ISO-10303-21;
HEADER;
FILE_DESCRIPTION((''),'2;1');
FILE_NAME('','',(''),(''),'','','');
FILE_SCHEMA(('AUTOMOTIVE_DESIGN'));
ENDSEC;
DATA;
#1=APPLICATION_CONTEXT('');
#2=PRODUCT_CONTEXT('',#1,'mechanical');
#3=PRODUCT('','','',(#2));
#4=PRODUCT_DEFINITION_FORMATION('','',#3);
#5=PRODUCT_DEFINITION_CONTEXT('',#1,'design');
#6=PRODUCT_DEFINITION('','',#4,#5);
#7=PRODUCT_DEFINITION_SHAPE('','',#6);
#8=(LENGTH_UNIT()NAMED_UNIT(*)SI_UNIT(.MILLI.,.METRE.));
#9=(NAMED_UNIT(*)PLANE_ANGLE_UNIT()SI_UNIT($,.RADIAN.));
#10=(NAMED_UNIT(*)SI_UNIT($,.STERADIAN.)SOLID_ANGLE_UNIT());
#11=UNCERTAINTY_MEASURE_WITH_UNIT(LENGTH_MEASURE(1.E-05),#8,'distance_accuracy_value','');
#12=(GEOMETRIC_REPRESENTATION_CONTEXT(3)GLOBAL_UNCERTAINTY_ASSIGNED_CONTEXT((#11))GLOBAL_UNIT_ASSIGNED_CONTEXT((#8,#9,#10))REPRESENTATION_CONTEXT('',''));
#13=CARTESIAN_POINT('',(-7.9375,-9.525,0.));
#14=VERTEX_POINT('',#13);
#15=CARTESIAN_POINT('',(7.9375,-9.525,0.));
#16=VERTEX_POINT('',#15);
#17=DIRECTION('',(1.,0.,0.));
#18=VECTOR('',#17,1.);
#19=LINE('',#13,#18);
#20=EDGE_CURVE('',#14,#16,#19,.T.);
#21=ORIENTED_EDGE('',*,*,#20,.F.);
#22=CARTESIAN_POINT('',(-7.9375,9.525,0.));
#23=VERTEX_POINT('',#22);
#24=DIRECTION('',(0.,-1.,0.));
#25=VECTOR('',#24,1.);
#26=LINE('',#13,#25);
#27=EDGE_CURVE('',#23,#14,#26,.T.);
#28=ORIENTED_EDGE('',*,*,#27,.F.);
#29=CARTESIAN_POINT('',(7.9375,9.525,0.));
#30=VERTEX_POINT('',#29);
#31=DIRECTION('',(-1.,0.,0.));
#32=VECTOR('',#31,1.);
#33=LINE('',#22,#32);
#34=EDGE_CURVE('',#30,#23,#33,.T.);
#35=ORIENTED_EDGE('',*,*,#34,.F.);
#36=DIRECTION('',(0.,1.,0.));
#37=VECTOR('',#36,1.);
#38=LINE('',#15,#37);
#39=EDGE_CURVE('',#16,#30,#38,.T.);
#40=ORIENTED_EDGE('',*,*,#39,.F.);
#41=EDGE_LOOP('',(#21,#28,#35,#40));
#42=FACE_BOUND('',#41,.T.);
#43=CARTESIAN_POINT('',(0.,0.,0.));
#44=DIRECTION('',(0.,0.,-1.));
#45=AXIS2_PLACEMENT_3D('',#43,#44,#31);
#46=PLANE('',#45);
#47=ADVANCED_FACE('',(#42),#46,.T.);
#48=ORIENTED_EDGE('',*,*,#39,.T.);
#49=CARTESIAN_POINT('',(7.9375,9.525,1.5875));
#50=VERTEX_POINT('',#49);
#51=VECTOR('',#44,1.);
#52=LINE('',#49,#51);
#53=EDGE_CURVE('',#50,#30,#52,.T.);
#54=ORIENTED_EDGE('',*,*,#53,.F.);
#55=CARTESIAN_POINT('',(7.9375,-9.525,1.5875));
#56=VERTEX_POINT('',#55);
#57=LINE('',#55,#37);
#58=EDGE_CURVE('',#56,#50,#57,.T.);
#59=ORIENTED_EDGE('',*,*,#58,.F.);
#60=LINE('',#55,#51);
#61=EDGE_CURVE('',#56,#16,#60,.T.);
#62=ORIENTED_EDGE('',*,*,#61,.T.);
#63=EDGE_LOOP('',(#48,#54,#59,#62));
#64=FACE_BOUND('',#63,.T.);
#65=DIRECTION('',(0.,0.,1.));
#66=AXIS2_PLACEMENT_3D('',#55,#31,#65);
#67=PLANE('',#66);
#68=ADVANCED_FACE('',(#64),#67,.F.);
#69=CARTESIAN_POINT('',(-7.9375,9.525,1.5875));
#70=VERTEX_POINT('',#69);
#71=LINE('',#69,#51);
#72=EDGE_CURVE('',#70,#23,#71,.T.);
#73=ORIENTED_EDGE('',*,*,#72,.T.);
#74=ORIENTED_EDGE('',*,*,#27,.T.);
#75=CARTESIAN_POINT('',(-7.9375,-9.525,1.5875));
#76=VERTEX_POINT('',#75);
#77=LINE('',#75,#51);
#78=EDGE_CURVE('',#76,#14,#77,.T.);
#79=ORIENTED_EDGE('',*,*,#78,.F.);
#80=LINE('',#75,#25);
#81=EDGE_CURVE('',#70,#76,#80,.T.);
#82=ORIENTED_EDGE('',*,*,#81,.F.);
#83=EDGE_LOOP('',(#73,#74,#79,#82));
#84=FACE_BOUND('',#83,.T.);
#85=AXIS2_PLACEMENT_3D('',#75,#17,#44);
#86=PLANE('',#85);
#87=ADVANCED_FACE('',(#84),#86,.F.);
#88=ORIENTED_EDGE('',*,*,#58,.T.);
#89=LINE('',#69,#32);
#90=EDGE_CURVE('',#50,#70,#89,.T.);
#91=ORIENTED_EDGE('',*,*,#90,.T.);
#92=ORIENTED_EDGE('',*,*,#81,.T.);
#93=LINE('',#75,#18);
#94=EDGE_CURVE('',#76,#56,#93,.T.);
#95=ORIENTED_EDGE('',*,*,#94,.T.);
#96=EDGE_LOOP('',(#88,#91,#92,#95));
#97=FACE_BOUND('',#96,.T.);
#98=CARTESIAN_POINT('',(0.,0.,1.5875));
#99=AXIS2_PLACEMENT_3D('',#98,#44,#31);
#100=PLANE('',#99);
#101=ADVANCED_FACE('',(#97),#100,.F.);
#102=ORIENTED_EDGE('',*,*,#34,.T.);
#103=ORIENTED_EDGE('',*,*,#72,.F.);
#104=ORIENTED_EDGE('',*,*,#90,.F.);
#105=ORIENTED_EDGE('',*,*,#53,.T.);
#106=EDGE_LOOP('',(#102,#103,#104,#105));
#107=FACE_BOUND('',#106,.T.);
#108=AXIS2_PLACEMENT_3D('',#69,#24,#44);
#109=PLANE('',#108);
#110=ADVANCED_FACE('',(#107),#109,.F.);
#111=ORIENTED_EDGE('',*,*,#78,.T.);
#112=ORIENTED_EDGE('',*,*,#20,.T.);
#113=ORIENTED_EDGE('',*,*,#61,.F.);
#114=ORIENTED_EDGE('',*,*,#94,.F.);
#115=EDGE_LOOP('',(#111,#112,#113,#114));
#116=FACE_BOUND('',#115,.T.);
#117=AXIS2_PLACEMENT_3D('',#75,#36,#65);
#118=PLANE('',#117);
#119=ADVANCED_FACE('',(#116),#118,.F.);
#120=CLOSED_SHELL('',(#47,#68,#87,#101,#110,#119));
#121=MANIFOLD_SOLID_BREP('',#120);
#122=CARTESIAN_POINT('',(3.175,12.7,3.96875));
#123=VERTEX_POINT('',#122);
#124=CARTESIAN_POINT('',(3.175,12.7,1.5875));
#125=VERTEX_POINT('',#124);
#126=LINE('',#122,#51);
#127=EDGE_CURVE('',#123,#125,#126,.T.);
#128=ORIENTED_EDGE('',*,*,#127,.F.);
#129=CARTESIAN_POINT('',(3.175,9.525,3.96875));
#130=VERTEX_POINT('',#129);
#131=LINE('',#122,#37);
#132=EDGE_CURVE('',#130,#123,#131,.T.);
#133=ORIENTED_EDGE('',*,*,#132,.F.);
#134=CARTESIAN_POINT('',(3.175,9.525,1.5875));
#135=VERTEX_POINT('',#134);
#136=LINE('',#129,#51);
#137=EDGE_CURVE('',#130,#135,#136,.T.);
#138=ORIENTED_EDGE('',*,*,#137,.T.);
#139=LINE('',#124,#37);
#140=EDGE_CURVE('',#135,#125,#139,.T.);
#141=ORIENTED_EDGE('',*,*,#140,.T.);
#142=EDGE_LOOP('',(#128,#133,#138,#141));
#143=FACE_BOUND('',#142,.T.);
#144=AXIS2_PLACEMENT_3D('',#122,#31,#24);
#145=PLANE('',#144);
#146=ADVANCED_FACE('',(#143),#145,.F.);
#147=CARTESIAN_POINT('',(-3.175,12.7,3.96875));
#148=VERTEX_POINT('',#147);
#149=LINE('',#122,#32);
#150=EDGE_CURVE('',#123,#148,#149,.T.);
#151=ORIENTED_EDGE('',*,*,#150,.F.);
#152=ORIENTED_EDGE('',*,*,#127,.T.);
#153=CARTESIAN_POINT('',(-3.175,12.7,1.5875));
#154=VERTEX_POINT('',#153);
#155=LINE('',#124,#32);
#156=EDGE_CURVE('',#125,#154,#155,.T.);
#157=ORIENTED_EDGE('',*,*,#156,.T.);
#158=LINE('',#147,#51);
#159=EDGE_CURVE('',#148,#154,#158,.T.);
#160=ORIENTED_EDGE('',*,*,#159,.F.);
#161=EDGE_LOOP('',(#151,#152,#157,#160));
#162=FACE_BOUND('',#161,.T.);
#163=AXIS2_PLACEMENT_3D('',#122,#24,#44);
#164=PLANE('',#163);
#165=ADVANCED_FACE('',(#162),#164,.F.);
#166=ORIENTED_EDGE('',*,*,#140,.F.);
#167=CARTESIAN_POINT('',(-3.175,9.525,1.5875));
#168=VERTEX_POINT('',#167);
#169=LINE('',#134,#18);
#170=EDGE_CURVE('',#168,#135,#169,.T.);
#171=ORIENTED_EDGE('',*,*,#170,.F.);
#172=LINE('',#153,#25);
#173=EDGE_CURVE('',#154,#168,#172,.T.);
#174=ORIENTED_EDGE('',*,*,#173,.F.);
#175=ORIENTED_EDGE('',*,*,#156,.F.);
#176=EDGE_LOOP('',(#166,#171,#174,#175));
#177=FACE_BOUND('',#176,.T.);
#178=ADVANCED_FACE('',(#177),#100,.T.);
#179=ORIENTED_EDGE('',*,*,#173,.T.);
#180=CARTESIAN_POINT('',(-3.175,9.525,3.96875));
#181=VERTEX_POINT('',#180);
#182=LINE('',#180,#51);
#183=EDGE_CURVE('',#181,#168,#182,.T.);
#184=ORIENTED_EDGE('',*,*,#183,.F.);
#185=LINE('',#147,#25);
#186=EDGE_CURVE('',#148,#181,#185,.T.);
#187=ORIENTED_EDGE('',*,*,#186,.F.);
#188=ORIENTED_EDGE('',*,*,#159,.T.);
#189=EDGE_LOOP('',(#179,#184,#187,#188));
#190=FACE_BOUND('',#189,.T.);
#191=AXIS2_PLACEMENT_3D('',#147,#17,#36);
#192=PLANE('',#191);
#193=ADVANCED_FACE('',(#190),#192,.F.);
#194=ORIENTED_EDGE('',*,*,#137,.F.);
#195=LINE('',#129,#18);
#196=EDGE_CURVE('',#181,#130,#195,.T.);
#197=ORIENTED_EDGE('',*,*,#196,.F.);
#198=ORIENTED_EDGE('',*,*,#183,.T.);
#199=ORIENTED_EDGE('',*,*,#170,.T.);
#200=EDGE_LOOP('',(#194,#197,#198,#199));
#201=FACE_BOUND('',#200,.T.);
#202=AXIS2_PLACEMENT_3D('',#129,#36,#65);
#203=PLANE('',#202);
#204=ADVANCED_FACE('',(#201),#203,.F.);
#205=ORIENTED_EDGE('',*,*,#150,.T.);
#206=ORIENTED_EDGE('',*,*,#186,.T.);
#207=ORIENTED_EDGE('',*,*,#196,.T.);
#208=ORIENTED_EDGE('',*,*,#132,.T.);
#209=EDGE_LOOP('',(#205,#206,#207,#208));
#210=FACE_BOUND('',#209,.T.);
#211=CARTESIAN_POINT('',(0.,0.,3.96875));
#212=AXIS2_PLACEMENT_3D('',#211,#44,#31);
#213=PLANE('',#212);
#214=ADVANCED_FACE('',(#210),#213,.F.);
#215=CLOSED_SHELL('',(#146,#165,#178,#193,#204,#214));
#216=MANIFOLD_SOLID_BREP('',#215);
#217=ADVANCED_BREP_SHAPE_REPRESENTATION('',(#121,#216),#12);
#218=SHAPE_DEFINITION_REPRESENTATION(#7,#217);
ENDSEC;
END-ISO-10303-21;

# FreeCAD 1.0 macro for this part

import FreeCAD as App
import Part
import Sketcher
from FreeCAD import Vector
Q = App.Units.Quantity

doc = App.newDocument("Part")
body = doc.addObject("PartDesign::Body", "Body")

# Sketch on XY plane
sketch1 = body.newObject("Sketcher::SketchObject", "Sketch")
sketch1.AttachmentSupport = (doc.getObject("XY_Plane"), [""])
sketch1.MapMode = "FlatFace"
sketch1.addGeometry([
    Part.LineSegment(Vector(-7.9375, 9.525, 0), Vector(-7.9375, -9.525, 0)),
    Part.LineSegment(Vector(-7.9375, -9.525, 0), Vector(7.9375, -9.525, 0)),
    Part.LineSegment(Vector(7.9375, -9.525, 0), Vector(7.9375, 9.525, 0)),
    Part.LineSegment(Vector(7.9375, 9.525, 0), Vector(-7.9375, 9.525, 0)),
], False)
sketch1.addConstraint([
    Sketcher.Constraint("Coincident", 0, 2, 1, 1),
    Sketcher.Constraint("Coincident", 1, 2, 2, 1),
    Sketcher.Constraint("Coincident", 2, 2, 3, 1),
    Sketcher.Constraint("Coincident", 3, 2, 0, 1),
    Sketcher.Constraint("Vertical", 0),
    Sketcher.Constraint("Horizontal", 1),
    Sketcher.Constraint("Vertical", 2),
    Sketcher.Constraint("Horizontal", 3),
    Sketcher.Constraint("Symmetric", 0, 2, 2, 2, -1, 1),
    Sketcher.Constraint("DistanceY", 0, 2, 0, 1, Q("0.75 in")),
    Sketcher.Constraint("DistanceX", 1, 1, 1, 2, Q("0.625 in")),
])
pad1 = body.newObject("PartDesign::Pad", "Pad")
pad1.Profile = sketch1
pad1.Length = Q("0.0625 in")
body2 = doc.addObject("PartDesign::Body", "Body001")

# Sketch on XY plane
sketch2 = body2.newObject("Sketcher::SketchObject", "Sketch001")
sketch2.AttachmentSupport = (doc.getObject("XY_Plane001"), [""])
sketch2.MapMode = "FlatFace"
sketch2.AttachmentOffset = App.Placement(Vector(0, 0, 0.0625 * 25.4), App.Rotation())
sketch2.addGeometry([
    Part.LineSegment(Vector(-3.175, 12.7, 0), Vector(-3.175, 9.525, 0)),
    Part.LineSegment(Vector(-3.175, 9.525, 0), Vector(3.175, 9.525, 0)),
    Part.LineSegment(Vector(3.175, 9.525, 0), Vector(3.175, 12.7, 0)),
    Part.LineSegment(Vector(3.175, 12.7, 0), Vector(-3.175, 12.7, 0)),
], False)
sketch2.addConstraint([
    Sketcher.Constraint("Coincident", 0, 2, 1, 1),
    Sketcher.Constraint("Coincident", 1, 2, 2, 1),
    Sketcher.Constraint("Coincident", 2, 2, 3, 1),
    Sketcher.Constraint("Coincident", 3, 2, 0, 1),
    Sketcher.Constraint("Vertical", 0),
    Sketcher.Constraint("Horizontal", 1),
    Sketcher.Constraint("Vertical", 2),
    Sketcher.Constraint("Horizontal", 3),
    Sketcher.Constraint("DistanceX", 1, 1, 1, 2, Q("0.25 in")),
    Sketcher.Constraint("DistanceY", -1, 1, 2, 2, Q("0.5 in")),
    Sketcher.Constraint("DistanceY", 0, 2, 0, 1, Q("0.125 in")),
    Sketcher.Constraint("DistanceX", 0, 2, -1, 1, Q("0.125 in")),
])
pad2 = body2.newObject("PartDesign::Pad", "Pad001")
pad2.Profile = sketch2
pad2.Length = Q("0.09375 in")

doc.recompute()
